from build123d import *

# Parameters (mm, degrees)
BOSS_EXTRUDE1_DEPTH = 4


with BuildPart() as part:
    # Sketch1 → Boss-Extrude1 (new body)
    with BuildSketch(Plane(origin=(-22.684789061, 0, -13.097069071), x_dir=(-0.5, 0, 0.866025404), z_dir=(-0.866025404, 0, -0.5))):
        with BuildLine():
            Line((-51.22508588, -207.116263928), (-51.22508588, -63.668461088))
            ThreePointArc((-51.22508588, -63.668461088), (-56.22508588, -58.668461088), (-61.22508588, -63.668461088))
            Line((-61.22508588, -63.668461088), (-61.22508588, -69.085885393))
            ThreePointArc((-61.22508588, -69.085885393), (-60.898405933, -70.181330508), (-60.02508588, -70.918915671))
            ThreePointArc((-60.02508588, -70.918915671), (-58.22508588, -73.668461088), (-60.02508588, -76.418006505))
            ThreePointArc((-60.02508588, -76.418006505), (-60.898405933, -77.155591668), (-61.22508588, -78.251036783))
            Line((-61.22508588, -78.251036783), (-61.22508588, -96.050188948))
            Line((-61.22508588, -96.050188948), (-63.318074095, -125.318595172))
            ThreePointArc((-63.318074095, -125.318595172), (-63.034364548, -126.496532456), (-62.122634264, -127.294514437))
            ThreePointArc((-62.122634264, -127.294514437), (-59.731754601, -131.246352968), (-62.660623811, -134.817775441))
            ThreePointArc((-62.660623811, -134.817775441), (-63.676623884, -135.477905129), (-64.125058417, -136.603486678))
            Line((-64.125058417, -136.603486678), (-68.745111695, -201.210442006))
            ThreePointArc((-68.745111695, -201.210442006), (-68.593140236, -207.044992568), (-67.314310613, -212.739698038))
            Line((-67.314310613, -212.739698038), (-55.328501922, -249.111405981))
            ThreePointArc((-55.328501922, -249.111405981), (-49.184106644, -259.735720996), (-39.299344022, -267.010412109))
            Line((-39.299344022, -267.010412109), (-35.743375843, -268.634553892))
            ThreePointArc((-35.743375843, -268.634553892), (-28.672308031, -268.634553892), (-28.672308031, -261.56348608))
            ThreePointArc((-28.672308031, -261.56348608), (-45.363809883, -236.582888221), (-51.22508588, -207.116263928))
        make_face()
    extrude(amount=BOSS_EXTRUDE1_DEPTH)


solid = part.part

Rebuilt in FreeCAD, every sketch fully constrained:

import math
import FreeCAD as App
import Part
import Sketcher

doc = App.newDocument("Part")
body = doc.addObject("PartDesign::Body", "Body")

sketch1 = body.newObject("Sketcher::SketchObject", "Sketch")
sketch1.Placement = App.Placement(App.Vector(-22.684789, 0, -13.097069), App.Rotation(App.Vector(-0.5, 0, 0.866025404), App.Vector(0, 1, 0), App.Vector(-0.866025404, 0, -0.5), "ZXY"))
sketch1.addGeometry([
    Part.LineSegment(App.Vector(-51.225086, -207.116264, 0), App.Vector(-51.225086, -63.668461, 0)),
    Part.ArcOfCircle(Part.Circle(App.Vector(-56.225086, -63.668461, 0), App.Vector(0, 0, 1), 5), math.radians(0), math.radians(180)),
    Part.LineSegment(App.Vector(-61.225086, -63.668461, 0), App.Vector(-61.225086, -69.085885, 0)),
    Part.ArcOfCircle(Part.Circle(App.Vector(-59.225086, -69.085885, 0), App.Vector(0, 0, 1), 2), math.radians(180), math.radians(246.421822)),
    Part.ArcOfCircle(Part.Circle(App.Vector(-61.225086, -73.668461, 0), App.Vector(0, 0, 1), 3), math.radians(-66.421822), math.radians(66.421822)),
    Part.ArcOfCircle(Part.Circle(App.Vector(-59.225086, -78.251037, 0), App.Vector(0, 0, 1), 2), math.radians(113.578178), math.radians(180)),
    Part.LineSegment(App.Vector(-61.225086, -78.251037, 0), App.Vector(-61.225086, -96.050189, 0)),
    Part.LineSegment(App.Vector(-61.225086, -96.050189, 0), App.Vector(-63.318074, -125.318595, 0)),
    Part.ArcOfCircle(Part.Circle(App.Vector(-61.323168, -125.461251, 0), App.Vector(0, 0, 1), 2), math.radians(175.909733), math.radians(246.438512)),
    Part.ArcOfCircle(Part.Circle(App.Vector(-63.721566, -130.961041, 0), App.Vector(0, 0, 1), 4), math.radians(-74.619047), math.radians(66.438512)),
    Part.ArcOfCircle(Part.Circle(App.Vector(-62.130153, -136.746143, 0), App.Vector(0, 0, 1), 2), math.radians(105.380953), math.radians(175.909733)),
    Part.LineSegment(App.Vector(-64.125058, -136.603487, 0), App.Vector(-68.745112, -201.210442, 0)),
    Part.ArcOfCircle(Part.Circle(App.Vector(-38.821524, -203.350282, 0), App.Vector(0, 0, 1), 30), math.radians(175.909733), math.radians(198.238943)),
    Part.LineSegment(App.Vector(-67.314311, -212.739698, 0), App.Vector(-55.328502, -249.111406, 0)),
    Part.ArcOfCircle(Part.Circle(App.Vector(-26.835716, -239.72199, 0), App.Vector(0, 0, 1), 30), math.radians(-161.761057), math.radians(-114.547928)),
    Part.LineSegment(App.Vector(-39.299344, -267.010412, 0), App.Vector(-35.743376, -268.634554, 0)),
    Part.ArcOfCircle(Part.Circle(App.Vector(-32.207842, -265.09902, 0), App.Vector(0, 0, 1), 5), math.radians(-135), math.radians(45)),
    Part.ArcOfCircle(Part.Circle(App.Vector(25.774914, -207.116264, 0), App.Vector(0, 0, 1), 77), math.radians(180), math.radians(225)),
], False)
sketch1.addConstraint([
    Sketcher.Constraint("Tangent", 0, 2, 1, 1),
    Sketcher.Constraint("Tangent", 1, 2, 2, 1),
    Sketcher.Constraint("Tangent", 2, 2, 3, 1),
    Sketcher.Constraint("Tangent", 3, 2, 4, 2),
    Sketcher.Constraint("Tangent", 4, 1, 5, 1),
    Sketcher.Constraint("Tangent", 5, 2, 6, 1),
    Sketcher.Constraint("Coincident", 6, 2, 7, 1),
    Sketcher.Constraint("Tangent", 7, 2, 8, 1),
    Sketcher.Constraint("Tangent", 8, 2, 9, 2),
    Sketcher.Constraint("Tangent", 9, 1, 10, 1),
    Sketcher.Constraint("Tangent", 10, 2, 11, 1),
    Sketcher.Constraint("Tangent", 11, 2, 12, 1),
    Sketcher.Constraint("Tangent", 12, 2, 13, 1),
    Sketcher.Constraint("Tangent", 13, 2, 14, 1),
    Sketcher.Constraint("Tangent", 14, 2, 15, 1),
    Sketcher.Constraint("Coincident", 15, 2, 16, 1),
    Sketcher.Constraint("Tangent", 16, 2, 17, 2),
    Sketcher.Constraint("Tangent", 17, 1, 0, 1),
    Sketcher.Constraint("Vertical", 0),
    Sketcher.Constraint("Vertical", 2),
    Sketcher.Constraint("Vertical", 6),
    Sketcher.Constraint("Equal", 3, 5),
    Sketcher.Constraint("Equal", 5, 8),
    Sketcher.Constraint("Equal", 8, 10),
    Sketcher.Constraint("Equal", 12, 14),
    Sketcher.Constraint("Equal", 1, 16),
    Sketcher.Constraint("Parallel", 7, 11),
    Sketcher.Constraint("Vertical", 3, 3, 5, 3),
    Sketcher.Constraint("Vertical", 4, 3, 1, 2),
    Sketcher.Constraint("Radius", 1, 5.0),
    Sketcher.Constraint("Radius", 3, 2.0),
    Sketcher.Constraint("Radius", 4, 3.0),
    Sketcher.Constraint("Radius", 9, 4.0),
    Sketcher.Constraint("Radius", 12, 30.0),
    Sketcher.Constraint("Radius", 17, 77.0),
    Sketcher.Constraint("DistanceY", 4, 3, 1, 3, 10.0),
    Sketcher.Constraint("Distance", 13, 38.295701),
    Sketcher.Constraint("DistanceY", 12, 2, -1, 1, 212.739698),
    Sketcher.Constraint("DistanceX", 13, 2, -1, 1, 55.328502),
    Sketcher.Constraint("DistanceY", 10, 3, 9, 3, 5.785102),
    Sketcher.Constraint("DistanceY", 11, 2, 10, 3, 64.464299),
    Sketcher.Constraint("DistanceX", 11, 2, 12, 2, 1.430801),
    Sketcher.Constraint("DistanceY", 0, 1, 0, 2, 143.447803),
    Sketcher.Constraint("DistanceY", 6, 2, 6, 1, 17.799152),
    Sketcher.Constraint("DistanceY", 1, 3, -1, 1, 63.668461),
    Sketcher.Constraint("DistanceX", 8, 3, -1, 1, 61.323168),
    Sketcher.Constraint("DistanceY", 8, 3, -1, 1, 125.461251),
    Sketcher.Constraint("DistanceX", 16, 3, -1, 1, 32.207842),
    Sketcher.Constraint("DistanceX", 14, 2, 14, 3, 12.463628),
])
pad1 = body.newObject("PartDesign::Pad", "Pad")
pad1.Profile = sketch1
pad1.Length = 4

doc.recompute()
